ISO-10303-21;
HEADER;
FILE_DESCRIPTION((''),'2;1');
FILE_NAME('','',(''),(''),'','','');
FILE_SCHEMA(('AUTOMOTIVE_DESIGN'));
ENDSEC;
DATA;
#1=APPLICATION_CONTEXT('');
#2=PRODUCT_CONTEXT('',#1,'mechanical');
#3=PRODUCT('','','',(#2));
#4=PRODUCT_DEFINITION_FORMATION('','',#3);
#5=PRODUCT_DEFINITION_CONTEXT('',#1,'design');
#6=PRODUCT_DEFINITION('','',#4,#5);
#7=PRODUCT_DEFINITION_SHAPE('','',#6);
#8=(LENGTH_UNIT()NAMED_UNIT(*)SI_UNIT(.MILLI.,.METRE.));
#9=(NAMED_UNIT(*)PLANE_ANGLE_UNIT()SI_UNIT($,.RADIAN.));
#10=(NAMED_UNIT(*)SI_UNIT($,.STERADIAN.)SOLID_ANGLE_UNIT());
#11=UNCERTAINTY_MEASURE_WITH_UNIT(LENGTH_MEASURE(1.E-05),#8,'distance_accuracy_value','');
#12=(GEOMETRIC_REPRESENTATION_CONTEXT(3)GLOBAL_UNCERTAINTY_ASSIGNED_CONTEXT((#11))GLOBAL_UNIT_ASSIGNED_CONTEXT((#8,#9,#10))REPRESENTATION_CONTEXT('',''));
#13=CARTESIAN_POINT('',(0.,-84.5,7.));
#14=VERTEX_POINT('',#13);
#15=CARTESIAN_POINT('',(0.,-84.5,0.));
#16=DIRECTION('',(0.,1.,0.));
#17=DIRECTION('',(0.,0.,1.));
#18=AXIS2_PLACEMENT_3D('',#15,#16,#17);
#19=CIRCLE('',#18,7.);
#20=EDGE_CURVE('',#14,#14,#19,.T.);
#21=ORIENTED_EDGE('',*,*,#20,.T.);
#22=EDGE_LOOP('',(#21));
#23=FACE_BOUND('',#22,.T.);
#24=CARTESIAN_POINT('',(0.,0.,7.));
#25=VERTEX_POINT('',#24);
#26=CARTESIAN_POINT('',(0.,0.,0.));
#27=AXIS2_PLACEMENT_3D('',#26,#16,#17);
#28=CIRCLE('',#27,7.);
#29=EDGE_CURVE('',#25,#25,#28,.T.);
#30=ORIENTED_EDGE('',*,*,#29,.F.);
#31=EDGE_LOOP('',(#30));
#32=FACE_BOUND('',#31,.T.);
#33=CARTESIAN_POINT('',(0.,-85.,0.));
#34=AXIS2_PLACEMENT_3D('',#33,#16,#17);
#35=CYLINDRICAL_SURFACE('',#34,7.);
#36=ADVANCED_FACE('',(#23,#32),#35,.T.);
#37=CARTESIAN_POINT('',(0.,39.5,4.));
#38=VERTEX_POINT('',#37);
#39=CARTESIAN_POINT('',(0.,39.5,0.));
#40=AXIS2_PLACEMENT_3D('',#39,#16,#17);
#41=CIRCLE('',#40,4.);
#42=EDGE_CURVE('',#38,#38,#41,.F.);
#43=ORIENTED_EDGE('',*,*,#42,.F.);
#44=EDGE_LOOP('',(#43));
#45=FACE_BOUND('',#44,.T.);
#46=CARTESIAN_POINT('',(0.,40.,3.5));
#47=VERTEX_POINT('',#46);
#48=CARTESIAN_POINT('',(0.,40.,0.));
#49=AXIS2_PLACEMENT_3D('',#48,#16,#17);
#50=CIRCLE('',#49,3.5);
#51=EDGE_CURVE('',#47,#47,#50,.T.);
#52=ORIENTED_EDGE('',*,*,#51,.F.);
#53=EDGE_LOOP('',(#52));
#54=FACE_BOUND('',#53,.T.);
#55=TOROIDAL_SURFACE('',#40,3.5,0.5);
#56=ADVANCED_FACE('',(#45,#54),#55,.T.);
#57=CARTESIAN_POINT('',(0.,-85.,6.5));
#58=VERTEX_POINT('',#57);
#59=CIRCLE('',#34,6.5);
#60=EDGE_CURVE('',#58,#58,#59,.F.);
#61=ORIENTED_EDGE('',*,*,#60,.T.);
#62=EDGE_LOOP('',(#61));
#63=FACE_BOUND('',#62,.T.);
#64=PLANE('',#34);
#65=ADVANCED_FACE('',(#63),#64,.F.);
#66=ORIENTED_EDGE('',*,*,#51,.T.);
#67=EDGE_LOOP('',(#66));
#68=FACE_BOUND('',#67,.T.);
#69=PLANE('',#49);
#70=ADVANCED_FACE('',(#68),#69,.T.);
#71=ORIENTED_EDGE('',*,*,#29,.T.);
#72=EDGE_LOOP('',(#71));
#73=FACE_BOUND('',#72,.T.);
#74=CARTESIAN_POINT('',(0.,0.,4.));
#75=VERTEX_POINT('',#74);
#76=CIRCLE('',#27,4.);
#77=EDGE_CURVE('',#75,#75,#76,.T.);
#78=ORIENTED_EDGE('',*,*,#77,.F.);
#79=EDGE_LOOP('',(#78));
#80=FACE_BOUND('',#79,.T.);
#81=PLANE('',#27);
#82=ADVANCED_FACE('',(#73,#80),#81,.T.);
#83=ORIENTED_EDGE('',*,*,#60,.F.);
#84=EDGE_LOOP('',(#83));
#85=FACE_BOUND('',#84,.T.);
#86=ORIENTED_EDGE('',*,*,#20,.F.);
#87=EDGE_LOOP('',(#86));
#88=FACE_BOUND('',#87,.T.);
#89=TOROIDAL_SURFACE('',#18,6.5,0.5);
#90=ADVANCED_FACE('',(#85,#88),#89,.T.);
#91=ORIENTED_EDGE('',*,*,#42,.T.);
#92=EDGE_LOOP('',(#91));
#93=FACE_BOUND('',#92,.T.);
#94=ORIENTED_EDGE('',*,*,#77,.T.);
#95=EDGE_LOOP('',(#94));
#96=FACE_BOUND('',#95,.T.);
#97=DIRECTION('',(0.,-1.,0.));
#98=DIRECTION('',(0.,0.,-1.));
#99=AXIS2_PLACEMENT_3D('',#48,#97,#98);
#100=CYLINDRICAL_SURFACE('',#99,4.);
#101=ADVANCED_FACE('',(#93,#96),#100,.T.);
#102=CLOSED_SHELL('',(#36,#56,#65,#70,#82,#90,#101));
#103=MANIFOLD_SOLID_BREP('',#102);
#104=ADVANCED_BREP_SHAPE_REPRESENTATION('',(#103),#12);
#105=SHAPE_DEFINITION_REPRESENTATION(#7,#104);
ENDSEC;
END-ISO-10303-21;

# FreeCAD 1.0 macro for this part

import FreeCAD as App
import Part
import Sketcher

V = App.Vector
Q = App.Units.Quantity


def edges_at(feature, points):
    """Names of the edges that pass closest to the given points."""
    edges = feature.Shape.Edges
    near = lambda p: min(range(len(edges)), key=lambda i: edges[i].distToShape(Part.Vertex(*p))[0])
    return sorted({f"Edge{near(p) + 1}" for p in points})

doc = App.newDocument("Part")
params = doc.addObject("Spreadsheet::Sheet", "Params")
for row, (alias, value) in enumerate([
    ("sketch1_diameter", "8 mm"),
    ("pad1_length", "40 mm"),
    ("sketch2_diameter", "14 mm"),
    ("pad2_length", "85 mm"),
    ("fillet_radius", "0.5 mm"),
], start=1):
    params.set(f"A{row}", alias)
    params.set(f"B{row}", "=" + value)
    params.setAlias(f"B{row}", alias)

body = doc.addObject("PartDesign::Body", "Body")

# Sketch on XZ plane
sketch1 = body.newObject("Sketcher::SketchObject", "Sketch")
sketch1.AttachmentSupport = (doc.getObject("XZ_Plane"), [""])
sketch1.MapMode = "FlatFace"
sketch1.addGeometry(Part.Circle(V(0, 0, 0), V(0, 0, 1), 4), False)
sketch1.addConstraint(Sketcher.Constraint("Coincident", 0, 3, -1, 1))
sketch1.addConstraint(Sketcher.Constraint("Diameter", 0, Q("8 mm")))
sketch1.setExpression("Constraints[1]", "Params.sketch1_diameter")
pad1 = body.newObject("PartDesign::Pad", "Pad")
pad1.Profile = sketch1
pad1.setExpression("Length", "Params.pad1_length")
pad1.Reversed = True

# Sketch on XZ plane
sketch2 = body.newObject("Sketcher::SketchObject", "Sketch001")
sketch2.AttachmentSupport = (doc.getObject("XZ_Plane"), [""])
sketch2.MapMode = "FlatFace"
sketch2.addGeometry(Part.Circle(V(0, 0, 0), V(0, 0, 1), 7), False)
sketch2.addConstraint(Sketcher.Constraint("Coincident", 0, 3, -1, 1))
sketch2.addConstraint(Sketcher.Constraint("Diameter", 0, Q("14 mm")))
sketch2.setExpression("Constraints[1]", "Params.sketch2_diameter")
pad2 = body.newObject("PartDesign::Pad", "Pad001")
pad2.Profile = sketch2
pad2.setExpression("Length", "Params.pad2_length")
doc.recompute()

fillet = body.newObject("PartDesign::Fillet", "Fillet")
fillet.Base = (pad2, edges_at(pad2, [(-4, 40, 0), (-7, -85, 0)]))
fillet.setExpression("Radius", "Params.fillet_radius")

doc.recompute()
